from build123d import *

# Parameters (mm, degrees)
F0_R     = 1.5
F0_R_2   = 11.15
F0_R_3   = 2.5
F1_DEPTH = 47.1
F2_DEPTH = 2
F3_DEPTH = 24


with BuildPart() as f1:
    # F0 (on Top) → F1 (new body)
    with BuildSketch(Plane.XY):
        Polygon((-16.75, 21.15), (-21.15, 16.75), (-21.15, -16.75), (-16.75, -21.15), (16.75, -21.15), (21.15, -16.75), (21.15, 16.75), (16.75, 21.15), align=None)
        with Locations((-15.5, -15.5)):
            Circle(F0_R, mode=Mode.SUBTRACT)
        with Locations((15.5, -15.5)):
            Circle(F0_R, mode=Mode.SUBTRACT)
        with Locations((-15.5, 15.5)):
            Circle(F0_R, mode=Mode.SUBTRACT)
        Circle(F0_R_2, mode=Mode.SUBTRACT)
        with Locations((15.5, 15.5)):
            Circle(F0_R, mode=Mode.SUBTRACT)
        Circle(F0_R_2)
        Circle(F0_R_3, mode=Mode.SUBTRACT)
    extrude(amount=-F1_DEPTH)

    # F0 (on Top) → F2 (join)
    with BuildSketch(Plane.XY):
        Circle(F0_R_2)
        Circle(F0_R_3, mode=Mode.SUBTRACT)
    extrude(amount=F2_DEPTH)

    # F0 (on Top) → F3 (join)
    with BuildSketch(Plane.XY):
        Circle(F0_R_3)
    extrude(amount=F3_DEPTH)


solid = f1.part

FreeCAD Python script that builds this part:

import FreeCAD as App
import Part
import Sketcher
from FreeCAD import Vector

doc = App.newDocument("Part")
body = doc.addObject("PartDesign::Body", "Body")

# Sketch on XY plane
sketch1 = body.newObject("Sketcher::SketchObject", "Sketch")
sketch1.AttachmentSupport = (doc.getObject("XY_Plane"), [""])
sketch1.MapMode = "FlatFace"
sketch1.addGeometry(Part.LineSegment(Vector(-16.75, 21.15, 0), Vector(-21.15, 16.75, 0)), False)
sketch1.addGeometry(Part.LineSegment(Vector(-21.15, 16.75, 0), Vector(-21.15, -16.75, 0)), False)
sketch1.addGeometry(Part.LineSegment(Vector(-21.15, -16.75, 0), Vector(-16.75, -21.15, 0)), False)
sketch1.addGeometry(Part.LineSegment(Vector(-16.75, -21.15, 0), Vector(16.75, -21.15, 0)), False)
sketch1.addGeometry(Part.LineSegment(Vector(16.75, -21.15, 0), Vector(21.15, -16.75, 0)), False)
sketch1.addGeometry(Part.LineSegment(Vector(21.15, -16.75, 0), Vector(21.15, 16.75, 0)), False)
sketch1.addGeometry(Part.LineSegment(Vector(21.15, 16.75, 0), Vector(16.75, 21.15, 0)), False)
sketch1.addGeometry(Part.LineSegment(Vector(16.75, 21.15, 0), Vector(-16.75, 21.15, 0)), False)
sketch1.addGeometry(Part.Circle(Vector(-15.5, -15.5, 0), Vector(0, 0, 1), 1.5), False)
sketch1.addGeometry(Part.Circle(Vector(15.5, -15.5, 0), Vector(0, 0, 1), 1.5), False)
sketch1.addGeometry(Part.Circle(Vector(-15.5, 15.5, 0), Vector(0, 0, 1), 1.5), False)
sketch1.addGeometry(Part.Circle(Vector(0, 0, 0), Vector(0, 0, 1), 2.5), False)
sketch1.addGeometry(Part.Circle(Vector(15.5, 15.5, 0), Vector(0, 0, 1), 1.5), False)
sketch1.addConstraint(Sketcher.Constraint("Coincident", 0, 2, 1, 1))
sketch1.addConstraint(Sketcher.Constraint("Coincident", 1, 2, 2, 1))
sketch1.addConstraint(Sketcher.Constraint("Coincident", 2, 2, 3, 1))
sketch1.addConstraint(Sketcher.Constraint("Coincident", 3, 2, 4, 1))
sketch1.addConstraint(Sketcher.Constraint("Coincident", 4, 2, 5, 1))
sketch1.addConstraint(Sketcher.Constraint("Coincident", 5, 2, 6, 1))
sketch1.addConstraint(Sketcher.Constraint("Coincident", 6, 2, 7, 1))
sketch1.addConstraint(Sketcher.Constraint("Coincident", 7, 2, 0, 1))
sketch1.addConstraint(Sketcher.Constraint("Vertical", 1))
sketch1.addConstraint(Sketcher.Constraint("Horizontal", 3))
sketch1.addConstraint(Sketcher.Constraint("Vertical", 5))
sketch1.addConstraint(Sketcher.Constraint("Horizontal", 7))
sketch1.addConstraint(Sketcher.Constraint("Coincident", 11, 3, -1, 1))
sketch1.addConstraint(Sketcher.Constraint("Equal", 8, 9))
sketch1.addConstraint(Sketcher.Constraint("Equal", 9, 10))
sketch1.addConstraint(Sketcher.Constraint("Equal", 10, 12))
sketch1.addConstraint(Sketcher.Constraint("Symmetric", 9, 3, 10, 3, -1, 1))
sketch1.addConstraint(Sketcher.Constraint("Symmetric", 8, 3, 12, 3, -1, 1))
sketch1.addConstraint(Sketcher.Constraint("Symmetric", 0, 2, 4, 2, -1, 1))
sketch1.addConstraint(Sketcher.Constraint("Symmetric", 2, 2, 6, 2, -1, 1))
sketch1.addConstraint(Sketcher.Constraint("Symmetric", 8, 3, 9, 3, -2))
sketch1.addConstraint(Sketcher.Constraint("Perpendicular", 0, 2))
sketch1.addConstraint(Sketcher.Constraint("Perpendicular", 2, 4))
sketch1.addConstraint(Sketcher.Constraint("Perpendicular", 4, 6))
sketch1.addConstraint(Sketcher.Constraint("Horizontal", 1, 2, 4, 2))
sketch1.addConstraint(Sketcher.Constraint("Vertical", 3, 2, 6, 2))
sketch1.addConstraint(Sketcher.Constraint("Equal", 7, 1))
sketch1.addConstraint(Sketcher.Constraint("Diameter", 8, 3.0))
sketch1.addConstraint(Sketcher.Constraint("Diameter", 11, 5.0))
sketch1.addConstraint(Sketcher.Constraint("DistanceX", 3, 1, 3, 2, 33.5))
sketch1.addConstraint(Sketcher.Constraint("DistanceX", 8, 3, 9, 3, 31.0))
sketch1.addConstraint(Sketcher.Constraint("DistanceY", 8, 3, 10, 3, 31.0))
sketch1.addConstraint(Sketcher.Constraint("DistanceX", 1, 2, 2, 2, 4.4))
pad1 = body.newObject("PartDesign::Pad", "Pad")
pad1.Profile = sketch1
pad1.Length = 47.1
pad1.Reversed = True

# Sketch on XY plane
sketch2 = body.newObject("Sketcher::SketchObject", "Sketch001")
sketch2.AttachmentSupport = (doc.getObject("XY_Plane"), [""])
sketch2.MapMode = "FlatFace"
sketch2.addGeometry(Part.Circle(Vector(0, 0, 0), Vector(0, 0, 1), 11.15), False)
sketch2.addGeometry(Part.Circle(Vector(0, 0, 0), Vector(0, 0, 1), 2.5), False)
sketch2.addConstraint(Sketcher.Constraint("Coincident", 0, 3, -1, 1))
sketch2.addConstraint(Sketcher.Constraint("Coincident", 1, 3, -1, 1))
sketch2.addConstraint(Sketcher.Constraint("Diameter", 1, 5.0))
sketch2.addConstraint(Sketcher.Constraint("Diameter", 0, 22.3))
pad2 = body.newObject("PartDesign::Pad", "Pad001")
pad2.Profile = sketch2
pad2.Length = 2

# Sketch on XY plane
sketch3 = body.newObject("Sketcher::SketchObject", "Sketch002")
sketch3.AttachmentSupport = (doc.getObject("XY_Plane"), [""])
sketch3.MapMode = "FlatFace"
sketch3.addGeometry(Part.Circle(Vector(0, 0, 0), Vector(0, 0, 1), 2.5), False)
sketch3.addConstraint(Sketcher.Constraint("Coincident", 0, 3, -1, 1))
sketch3.addConstraint(Sketcher.Constraint("Diameter", 0, 5.0))
pad3 = body.newObject("PartDesign::Pad", "Pad002")
pad3.Profile = sketch3
pad3.Length = 24

doc.recompute()
